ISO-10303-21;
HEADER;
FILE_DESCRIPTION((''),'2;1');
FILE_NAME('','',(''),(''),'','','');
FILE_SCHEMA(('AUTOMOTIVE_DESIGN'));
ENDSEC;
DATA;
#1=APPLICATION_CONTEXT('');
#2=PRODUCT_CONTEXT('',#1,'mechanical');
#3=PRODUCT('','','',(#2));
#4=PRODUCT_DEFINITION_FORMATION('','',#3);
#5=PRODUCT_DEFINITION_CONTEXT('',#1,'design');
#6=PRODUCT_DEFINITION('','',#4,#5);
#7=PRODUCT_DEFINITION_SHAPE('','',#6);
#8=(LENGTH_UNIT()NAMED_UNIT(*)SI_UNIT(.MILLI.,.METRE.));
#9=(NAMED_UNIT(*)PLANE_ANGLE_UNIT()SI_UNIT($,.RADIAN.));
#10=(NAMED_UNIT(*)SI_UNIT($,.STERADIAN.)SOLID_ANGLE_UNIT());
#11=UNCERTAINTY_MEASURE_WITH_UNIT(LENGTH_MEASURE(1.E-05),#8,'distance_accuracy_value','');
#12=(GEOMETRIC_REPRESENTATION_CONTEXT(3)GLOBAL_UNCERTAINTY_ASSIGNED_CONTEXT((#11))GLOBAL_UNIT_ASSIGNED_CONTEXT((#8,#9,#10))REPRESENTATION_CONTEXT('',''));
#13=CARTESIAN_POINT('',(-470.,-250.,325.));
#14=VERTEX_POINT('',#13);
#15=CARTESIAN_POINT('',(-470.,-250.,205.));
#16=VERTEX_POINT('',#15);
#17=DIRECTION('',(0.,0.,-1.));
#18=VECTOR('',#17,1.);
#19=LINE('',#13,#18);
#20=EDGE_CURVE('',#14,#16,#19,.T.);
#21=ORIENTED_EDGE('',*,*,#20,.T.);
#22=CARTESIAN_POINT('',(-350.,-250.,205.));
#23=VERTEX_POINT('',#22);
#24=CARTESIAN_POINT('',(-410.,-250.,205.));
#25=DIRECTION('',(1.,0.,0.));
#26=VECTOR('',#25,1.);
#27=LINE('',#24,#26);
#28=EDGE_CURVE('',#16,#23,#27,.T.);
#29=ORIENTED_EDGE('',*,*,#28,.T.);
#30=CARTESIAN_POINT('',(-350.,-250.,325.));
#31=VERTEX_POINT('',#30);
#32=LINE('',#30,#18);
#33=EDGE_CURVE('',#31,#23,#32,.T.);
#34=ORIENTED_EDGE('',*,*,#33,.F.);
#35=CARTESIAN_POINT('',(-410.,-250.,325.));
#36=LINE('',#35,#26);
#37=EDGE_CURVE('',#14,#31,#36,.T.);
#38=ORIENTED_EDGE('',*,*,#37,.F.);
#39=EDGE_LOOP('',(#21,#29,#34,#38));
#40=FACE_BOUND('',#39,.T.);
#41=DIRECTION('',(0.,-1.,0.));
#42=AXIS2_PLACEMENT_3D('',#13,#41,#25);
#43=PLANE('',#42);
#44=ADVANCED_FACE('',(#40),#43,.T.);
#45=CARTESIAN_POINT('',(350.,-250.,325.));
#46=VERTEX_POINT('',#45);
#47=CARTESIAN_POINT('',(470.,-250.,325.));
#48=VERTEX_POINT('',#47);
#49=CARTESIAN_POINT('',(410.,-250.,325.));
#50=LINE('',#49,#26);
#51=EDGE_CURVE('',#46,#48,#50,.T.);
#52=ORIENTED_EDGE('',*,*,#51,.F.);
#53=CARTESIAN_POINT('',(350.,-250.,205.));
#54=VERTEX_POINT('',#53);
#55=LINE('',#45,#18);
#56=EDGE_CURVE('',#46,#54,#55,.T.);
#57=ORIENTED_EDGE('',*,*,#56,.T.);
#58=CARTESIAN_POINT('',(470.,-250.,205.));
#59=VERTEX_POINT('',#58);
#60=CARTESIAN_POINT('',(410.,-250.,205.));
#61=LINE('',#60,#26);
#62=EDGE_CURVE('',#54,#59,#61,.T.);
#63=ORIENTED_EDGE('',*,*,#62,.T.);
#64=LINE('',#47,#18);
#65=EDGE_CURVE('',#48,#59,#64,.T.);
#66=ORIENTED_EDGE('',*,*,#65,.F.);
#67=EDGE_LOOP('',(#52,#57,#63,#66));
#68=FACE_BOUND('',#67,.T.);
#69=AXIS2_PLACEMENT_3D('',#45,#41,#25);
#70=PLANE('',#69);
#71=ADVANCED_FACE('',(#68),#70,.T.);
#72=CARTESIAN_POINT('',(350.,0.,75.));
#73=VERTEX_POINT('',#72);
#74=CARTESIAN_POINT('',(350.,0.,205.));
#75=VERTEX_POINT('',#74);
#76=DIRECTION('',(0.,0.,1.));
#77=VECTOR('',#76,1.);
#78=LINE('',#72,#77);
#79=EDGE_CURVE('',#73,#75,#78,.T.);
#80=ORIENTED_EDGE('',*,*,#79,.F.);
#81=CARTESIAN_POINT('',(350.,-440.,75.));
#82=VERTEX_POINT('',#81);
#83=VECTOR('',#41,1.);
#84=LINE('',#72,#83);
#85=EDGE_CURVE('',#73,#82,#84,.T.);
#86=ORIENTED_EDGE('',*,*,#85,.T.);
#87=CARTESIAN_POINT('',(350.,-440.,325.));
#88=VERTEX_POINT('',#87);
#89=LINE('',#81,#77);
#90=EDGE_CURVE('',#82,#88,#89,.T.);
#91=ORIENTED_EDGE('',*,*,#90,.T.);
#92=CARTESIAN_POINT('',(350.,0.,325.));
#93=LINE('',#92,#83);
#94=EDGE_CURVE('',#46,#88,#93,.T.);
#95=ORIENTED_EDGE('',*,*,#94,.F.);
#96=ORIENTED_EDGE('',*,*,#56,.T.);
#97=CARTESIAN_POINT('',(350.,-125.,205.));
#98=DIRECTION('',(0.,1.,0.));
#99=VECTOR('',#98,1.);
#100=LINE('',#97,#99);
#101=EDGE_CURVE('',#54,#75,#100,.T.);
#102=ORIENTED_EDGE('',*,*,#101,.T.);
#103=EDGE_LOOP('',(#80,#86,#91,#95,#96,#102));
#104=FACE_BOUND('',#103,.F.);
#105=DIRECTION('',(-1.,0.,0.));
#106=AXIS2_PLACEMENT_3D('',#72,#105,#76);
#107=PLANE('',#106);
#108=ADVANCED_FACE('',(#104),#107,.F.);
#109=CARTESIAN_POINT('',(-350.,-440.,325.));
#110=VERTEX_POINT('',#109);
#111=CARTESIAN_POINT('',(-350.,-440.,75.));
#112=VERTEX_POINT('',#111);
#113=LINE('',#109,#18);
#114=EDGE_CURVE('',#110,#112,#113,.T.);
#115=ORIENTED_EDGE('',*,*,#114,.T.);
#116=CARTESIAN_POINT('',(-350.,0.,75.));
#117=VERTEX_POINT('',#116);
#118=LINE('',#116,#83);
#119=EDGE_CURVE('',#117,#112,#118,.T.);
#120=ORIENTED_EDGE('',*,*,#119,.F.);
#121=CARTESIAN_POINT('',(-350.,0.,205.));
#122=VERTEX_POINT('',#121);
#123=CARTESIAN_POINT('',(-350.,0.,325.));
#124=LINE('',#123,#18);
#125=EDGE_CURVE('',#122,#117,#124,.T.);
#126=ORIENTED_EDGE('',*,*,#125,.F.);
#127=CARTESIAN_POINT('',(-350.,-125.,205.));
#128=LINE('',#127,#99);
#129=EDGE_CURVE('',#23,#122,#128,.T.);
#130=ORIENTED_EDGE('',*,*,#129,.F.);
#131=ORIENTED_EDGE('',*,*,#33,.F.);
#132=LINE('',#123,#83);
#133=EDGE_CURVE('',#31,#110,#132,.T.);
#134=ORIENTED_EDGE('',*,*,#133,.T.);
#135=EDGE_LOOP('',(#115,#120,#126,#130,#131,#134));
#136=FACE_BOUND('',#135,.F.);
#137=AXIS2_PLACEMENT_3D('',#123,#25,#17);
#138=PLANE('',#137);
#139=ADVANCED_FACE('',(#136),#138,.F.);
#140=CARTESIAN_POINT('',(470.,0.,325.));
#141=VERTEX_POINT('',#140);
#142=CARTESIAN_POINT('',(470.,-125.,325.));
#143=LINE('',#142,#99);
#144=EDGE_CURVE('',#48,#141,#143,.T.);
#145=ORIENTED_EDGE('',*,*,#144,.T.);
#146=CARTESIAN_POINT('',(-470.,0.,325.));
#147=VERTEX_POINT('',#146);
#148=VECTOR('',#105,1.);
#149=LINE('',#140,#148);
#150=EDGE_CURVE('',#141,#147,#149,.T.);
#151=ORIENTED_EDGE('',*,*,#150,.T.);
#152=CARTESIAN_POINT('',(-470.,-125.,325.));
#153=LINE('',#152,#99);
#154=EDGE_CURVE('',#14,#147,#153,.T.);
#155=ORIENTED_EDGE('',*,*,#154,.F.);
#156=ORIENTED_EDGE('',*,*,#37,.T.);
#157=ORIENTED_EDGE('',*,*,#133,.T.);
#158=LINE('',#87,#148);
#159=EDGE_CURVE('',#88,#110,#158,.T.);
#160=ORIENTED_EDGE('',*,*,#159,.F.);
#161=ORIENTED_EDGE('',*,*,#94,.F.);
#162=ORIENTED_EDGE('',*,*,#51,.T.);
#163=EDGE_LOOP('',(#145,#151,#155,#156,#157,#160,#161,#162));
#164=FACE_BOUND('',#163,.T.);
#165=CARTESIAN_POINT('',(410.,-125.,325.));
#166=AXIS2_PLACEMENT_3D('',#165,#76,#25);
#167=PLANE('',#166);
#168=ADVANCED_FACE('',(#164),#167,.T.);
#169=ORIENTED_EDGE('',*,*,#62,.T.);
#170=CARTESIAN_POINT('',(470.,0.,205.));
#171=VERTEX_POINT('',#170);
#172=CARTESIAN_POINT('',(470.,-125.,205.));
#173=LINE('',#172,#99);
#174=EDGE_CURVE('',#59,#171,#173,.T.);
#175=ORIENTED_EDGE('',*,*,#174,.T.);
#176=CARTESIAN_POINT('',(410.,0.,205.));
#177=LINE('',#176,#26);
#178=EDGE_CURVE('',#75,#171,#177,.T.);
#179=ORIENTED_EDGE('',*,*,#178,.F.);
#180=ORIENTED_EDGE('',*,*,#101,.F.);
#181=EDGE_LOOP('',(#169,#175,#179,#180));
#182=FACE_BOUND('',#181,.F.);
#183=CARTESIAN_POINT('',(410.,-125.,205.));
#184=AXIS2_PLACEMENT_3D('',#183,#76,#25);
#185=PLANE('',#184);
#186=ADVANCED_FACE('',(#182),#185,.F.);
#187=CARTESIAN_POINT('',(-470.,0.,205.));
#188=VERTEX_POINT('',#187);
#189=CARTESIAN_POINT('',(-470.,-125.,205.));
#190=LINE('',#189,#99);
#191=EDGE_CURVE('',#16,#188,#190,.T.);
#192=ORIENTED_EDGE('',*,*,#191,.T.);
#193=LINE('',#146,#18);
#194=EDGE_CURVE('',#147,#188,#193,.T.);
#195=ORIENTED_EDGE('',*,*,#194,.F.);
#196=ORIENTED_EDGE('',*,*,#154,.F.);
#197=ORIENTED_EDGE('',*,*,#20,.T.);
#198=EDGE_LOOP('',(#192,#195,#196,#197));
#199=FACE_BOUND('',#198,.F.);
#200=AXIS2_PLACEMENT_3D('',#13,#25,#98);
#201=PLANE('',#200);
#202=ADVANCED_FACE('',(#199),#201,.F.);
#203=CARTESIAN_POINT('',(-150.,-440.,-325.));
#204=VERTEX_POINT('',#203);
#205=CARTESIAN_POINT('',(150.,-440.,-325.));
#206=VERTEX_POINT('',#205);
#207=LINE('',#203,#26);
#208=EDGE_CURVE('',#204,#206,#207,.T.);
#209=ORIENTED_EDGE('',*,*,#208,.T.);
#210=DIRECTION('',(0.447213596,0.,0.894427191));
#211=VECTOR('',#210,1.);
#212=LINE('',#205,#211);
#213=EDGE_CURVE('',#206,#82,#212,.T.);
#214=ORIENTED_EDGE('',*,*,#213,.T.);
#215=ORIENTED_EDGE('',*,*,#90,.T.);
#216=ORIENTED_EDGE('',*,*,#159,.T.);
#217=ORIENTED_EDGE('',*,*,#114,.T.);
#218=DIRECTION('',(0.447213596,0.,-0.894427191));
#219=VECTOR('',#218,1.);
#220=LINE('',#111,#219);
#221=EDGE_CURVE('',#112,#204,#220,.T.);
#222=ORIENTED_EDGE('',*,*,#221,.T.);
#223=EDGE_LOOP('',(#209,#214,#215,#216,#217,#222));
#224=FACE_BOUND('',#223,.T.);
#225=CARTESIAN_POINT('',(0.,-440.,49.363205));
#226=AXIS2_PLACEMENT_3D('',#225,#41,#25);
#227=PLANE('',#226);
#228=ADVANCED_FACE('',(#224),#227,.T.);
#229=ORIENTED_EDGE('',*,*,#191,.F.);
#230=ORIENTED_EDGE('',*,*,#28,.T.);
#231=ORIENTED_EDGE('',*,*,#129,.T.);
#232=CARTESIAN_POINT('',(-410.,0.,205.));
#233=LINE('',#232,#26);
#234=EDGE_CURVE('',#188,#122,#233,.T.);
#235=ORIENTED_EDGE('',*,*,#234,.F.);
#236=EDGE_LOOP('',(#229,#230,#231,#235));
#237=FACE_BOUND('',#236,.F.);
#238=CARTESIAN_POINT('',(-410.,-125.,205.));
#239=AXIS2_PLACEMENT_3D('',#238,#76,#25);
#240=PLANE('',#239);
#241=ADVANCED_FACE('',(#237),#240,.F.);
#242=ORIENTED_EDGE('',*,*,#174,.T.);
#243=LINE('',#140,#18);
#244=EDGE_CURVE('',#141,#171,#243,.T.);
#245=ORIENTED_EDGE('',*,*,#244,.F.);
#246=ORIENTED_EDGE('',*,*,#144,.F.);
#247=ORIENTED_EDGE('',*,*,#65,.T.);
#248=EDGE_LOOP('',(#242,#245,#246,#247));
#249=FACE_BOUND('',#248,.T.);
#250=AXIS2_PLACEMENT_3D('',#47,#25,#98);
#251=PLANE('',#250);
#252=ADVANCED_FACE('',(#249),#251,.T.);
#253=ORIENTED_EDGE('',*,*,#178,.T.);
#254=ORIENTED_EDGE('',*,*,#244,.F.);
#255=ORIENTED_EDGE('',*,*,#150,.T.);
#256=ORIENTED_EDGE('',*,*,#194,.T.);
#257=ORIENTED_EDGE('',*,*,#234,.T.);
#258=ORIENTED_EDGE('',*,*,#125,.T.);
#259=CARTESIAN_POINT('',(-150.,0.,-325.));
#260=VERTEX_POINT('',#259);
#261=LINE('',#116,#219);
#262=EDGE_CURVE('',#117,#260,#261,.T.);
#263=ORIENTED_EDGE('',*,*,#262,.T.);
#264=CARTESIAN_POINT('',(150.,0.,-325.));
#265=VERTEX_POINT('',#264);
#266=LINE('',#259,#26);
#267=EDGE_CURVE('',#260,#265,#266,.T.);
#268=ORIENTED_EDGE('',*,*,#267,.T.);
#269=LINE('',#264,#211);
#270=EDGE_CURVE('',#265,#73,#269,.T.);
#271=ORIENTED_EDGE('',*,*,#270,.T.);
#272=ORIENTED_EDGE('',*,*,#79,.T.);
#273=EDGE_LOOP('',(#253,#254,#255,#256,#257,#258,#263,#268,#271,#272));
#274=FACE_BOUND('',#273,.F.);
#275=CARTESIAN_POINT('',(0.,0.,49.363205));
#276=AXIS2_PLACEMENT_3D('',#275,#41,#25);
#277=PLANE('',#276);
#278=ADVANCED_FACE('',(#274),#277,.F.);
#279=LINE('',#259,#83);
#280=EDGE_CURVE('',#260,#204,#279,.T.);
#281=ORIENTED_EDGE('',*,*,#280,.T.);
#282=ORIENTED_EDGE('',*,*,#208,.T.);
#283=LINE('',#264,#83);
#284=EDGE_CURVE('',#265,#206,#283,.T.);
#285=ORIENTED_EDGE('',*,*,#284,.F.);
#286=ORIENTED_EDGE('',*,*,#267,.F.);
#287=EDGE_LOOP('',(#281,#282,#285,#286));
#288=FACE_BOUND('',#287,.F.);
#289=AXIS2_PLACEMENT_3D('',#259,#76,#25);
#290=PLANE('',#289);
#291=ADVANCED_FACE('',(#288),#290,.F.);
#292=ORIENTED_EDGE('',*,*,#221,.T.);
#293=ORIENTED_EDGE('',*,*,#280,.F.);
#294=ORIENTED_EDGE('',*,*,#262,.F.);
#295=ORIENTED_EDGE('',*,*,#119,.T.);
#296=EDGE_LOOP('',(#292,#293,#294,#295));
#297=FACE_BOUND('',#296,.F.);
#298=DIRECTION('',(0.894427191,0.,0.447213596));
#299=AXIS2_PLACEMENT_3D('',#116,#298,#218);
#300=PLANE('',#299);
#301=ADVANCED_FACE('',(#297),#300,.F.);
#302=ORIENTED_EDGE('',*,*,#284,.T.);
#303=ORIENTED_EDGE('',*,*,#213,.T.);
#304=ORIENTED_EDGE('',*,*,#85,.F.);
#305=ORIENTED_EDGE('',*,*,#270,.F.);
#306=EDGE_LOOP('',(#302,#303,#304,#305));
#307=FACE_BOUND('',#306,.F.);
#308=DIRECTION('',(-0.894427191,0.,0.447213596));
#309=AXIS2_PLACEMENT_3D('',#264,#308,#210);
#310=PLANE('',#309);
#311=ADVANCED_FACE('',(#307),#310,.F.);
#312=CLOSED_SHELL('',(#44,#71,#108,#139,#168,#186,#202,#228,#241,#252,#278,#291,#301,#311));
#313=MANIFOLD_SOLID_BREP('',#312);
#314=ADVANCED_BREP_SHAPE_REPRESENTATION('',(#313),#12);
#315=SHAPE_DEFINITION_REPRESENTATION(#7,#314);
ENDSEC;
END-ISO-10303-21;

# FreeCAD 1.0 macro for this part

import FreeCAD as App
import Part
import Sketcher


def add_polygon(sketch, points):
    """Adds a closed chain of lines whose ends are joined by coincident constraints."""
    first, n = sketch.GeometryCount, len(points)
    for a, b in zip(points, points[1:] + points[:1]):
        sketch.addGeometry(Part.LineSegment(App.Vector(*a, 0), App.Vector(*b, 0)), False)
    for i in range(n):
        sketch.addConstraint(Sketcher.Constraint("Coincident", first + i, 2, first + (i + 1) % n, 1))

doc = App.newDocument("Part")
params = doc.addObject("Spreadsheet::Sheet", "Params")
for row, (alias, value) in enumerate([
    ("sketch1_width", "300 mm"),
    ("sketch1_width2", "700 mm"),
    ("sketch1_height", "250 mm"),
    ("pad1_length", "440 mm"),
    ("sketch2_width", "120 mm"),
    ("sketch2_height", "250 mm"),
    ("pad2_length", "120 mm"),
], start=1):
    params.set(f"A{row}", alias)
    params.set(f"B{row}", "=" + value)
    params.setAlias(f"B{row}", alias)

body = doc.addObject("PartDesign::Body", "Body")

# Sketch on XZ plane
sketch1 = doc.addObject("Sketcher::SketchObject", "Sketch")
body.addObject(sketch1)
sketch1.AttachmentSupport = (doc.XZ_Plane, [""])
sketch1.MapMode = "FlatFace"
add_polygon(sketch1, [(-150, -325), (150, -325), (350, 75), (350, 325), (-350, 325), (-350, 75)])  # lines 0-5
sketch1.addConstraint([
    Sketcher.Constraint("Horizontal", 0),
    Sketcher.Constraint("Vertical", 2),
    Sketcher.Constraint("Horizontal", 3),
    Sketcher.Constraint("Vertical", 4),
    Sketcher.Constraint("Symmetric", 1, 2, 4, 2, -2),
    Sketcher.Constraint("Equal", 1, 5),
    Sketcher.Constraint("DistanceX", 0, 1, 0, 2, 300.0),
    Sketcher.Constraint("DistanceX", 3, 2, 3, 1, 700.0),
    Sketcher.Constraint("DistanceY", 2, 1, 2, 2, 250.0),
    Sketcher.Constraint("DistanceY", 0, 2, -1, 1, 325.0),
    Sketcher.Constraint("DistanceY", -1, 1, 1, 2, 75.0),
])
sketch1.setExpression("Constraints[12]", "Params.sketch1_width")
sketch1.setExpression("Constraints[13]", "Params.sketch1_width2")
sketch1.setExpression("Constraints[14]", "Params.sketch1_height")
pad1 = doc.addObject("PartDesign::Pad", "Pad")
body.addObject(pad1)
pad1.Profile = sketch1
pad1.setExpression("Length", "Params.pad1_length")

# Sketch on XY plane
sketch2 = doc.addObject("Sketcher::SketchObject", "Sketch001")
body.addObject(sketch2)
sketch2.AttachmentSupport = (doc.XY_Plane, [""])
sketch2.MapMode = "FlatFace"
sketch2.AttachmentOffset = App.Placement(App.Vector(0, 0, 325), App.Rotation())
add_polygon(sketch2, [(350, 0), (350, -250), (470, -250), (470, 0)])  # lines 0-3
add_polygon(sketch2, [(-470, 0), (-470, -250), (-350, -250), (-350, 0)])  # lines 4-7
sketch2.addConstraint([
    Sketcher.Constraint("Vertical", 0),
    Sketcher.Constraint("Horizontal", 1),
    Sketcher.Constraint("Vertical", 2),
    Sketcher.Constraint("Horizontal", 3),
    Sketcher.Constraint("Vertical", 4),
    Sketcher.Constraint("Horizontal", 5),
    Sketcher.Constraint("Vertical", 6),
    Sketcher.Constraint("Horizontal", 7),
    Sketcher.Constraint("Symmetric", 3, 2, 6, 2, -1, 1),
    Sketcher.Constraint("Symmetric", 1, 2, 4, 2, -2),
    Sketcher.Constraint("PointOnObject", 2, 2, -1),
    Sketcher.Constraint("DistanceX", 1, 1, 1, 2, 120.0),
    Sketcher.Constraint("DistanceY", 0, 2, 0, 1, 250.0),
    Sketcher.Constraint("DistanceX", -1, 1, 0, 2, 350.0),
])
sketch2.setExpression("Constraints[19]", "Params.sketch2_width")
sketch2.setExpression("Constraints[20]", "Params.sketch2_height")
pad2 = doc.addObject("PartDesign::Pad", "Pad001")
body.addObject(pad2)
pad2.Profile = sketch2
pad2.setExpression("Length", "Params.pad2_length")
pad2.Reversed = True

doc.recompute()
